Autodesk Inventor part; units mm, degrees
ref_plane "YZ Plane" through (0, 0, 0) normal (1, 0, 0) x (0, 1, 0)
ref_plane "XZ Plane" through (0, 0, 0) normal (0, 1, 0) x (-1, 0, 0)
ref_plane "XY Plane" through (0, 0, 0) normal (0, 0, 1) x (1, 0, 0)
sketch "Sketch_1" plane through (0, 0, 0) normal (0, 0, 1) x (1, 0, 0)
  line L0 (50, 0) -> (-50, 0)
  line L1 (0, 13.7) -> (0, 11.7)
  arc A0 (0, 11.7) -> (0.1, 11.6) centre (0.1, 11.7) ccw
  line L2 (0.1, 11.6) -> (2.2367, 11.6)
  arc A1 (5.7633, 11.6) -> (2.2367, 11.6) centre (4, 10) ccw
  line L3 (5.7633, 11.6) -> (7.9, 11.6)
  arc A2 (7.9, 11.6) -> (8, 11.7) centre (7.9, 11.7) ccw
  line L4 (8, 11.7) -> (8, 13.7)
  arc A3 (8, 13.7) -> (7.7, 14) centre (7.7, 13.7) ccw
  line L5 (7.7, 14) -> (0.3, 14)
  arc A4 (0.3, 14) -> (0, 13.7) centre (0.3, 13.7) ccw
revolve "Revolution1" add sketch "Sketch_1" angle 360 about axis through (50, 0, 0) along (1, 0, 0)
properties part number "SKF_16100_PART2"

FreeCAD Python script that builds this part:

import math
import FreeCAD as App
import Part
import Sketcher
from FreeCAD import Vector

doc = App.newDocument("Part")
body = doc.addObject("PartDesign::Body", "Body")

sketch1 = doc.addObject("Sketcher::SketchObject", "Sketch")
body.addObject(sketch1)
sketch1.AttachmentSupport = (doc.XY_Plane, [""])
sketch1.MapMode = "FlatFace"
sketch1.addGeometry(Part.ArcOfCircle(Part.Circle(Vector(0.3, 13.7, 0), Vector(0, 0, 1), 0.3), math.radians(90), math.radians(180)), False)
sketch1.addGeometry(Part.LineSegment(Vector(0, 13.7, 0), Vector(0, 11.7, 0)), False)
sketch1.addGeometry(Part.ArcOfCircle(Part.Circle(Vector(0.1, 11.7, 0), Vector(0, 0, 1), 0.1), math.radians(180), math.radians(270)), False)
sketch1.addGeometry(Part.LineSegment(Vector(0.1, 11.6, 0), Vector(2.24, 11.6, 0)), False)
sketch1.addGeometry(Part.ArcOfCircle(Part.Circle(Vector(4, 10, 0), Vector(0, 0, 1), 2.38), math.radians(42), math.radians(138)), False)
sketch1.addGeometry(Part.LineSegment(Vector(5.76, 11.6, 0), Vector(7.9, 11.6, 0)), False)
sketch1.addGeometry(Part.ArcOfCircle(Part.Circle(Vector(7.9, 11.7, 0), Vector(0, 0, 1), 0.1), math.radians(-90), math.radians(0)), False)
sketch1.addGeometry(Part.LineSegment(Vector(8, 11.7, 0), Vector(8, 13.7, 0)), False)
sketch1.addGeometry(Part.ArcOfCircle(Part.Circle(Vector(7.7, 13.7, 0), Vector(0, 0, 1), 0.3), math.radians(0), math.radians(90)), False)
sketch1.addGeometry(Part.LineSegment(Vector(7.7, 14, 0), Vector(0.3, 14, 0)), False)
sketch1.addConstraint(Sketcher.Constraint("Tangent", 0, 2, 1, 1))
sketch1.addConstraint(Sketcher.Constraint("Tangent", 1, 2, 2, 1))
sketch1.addConstraint(Sketcher.Constraint("Tangent", 2, 2, 3, 1))
sketch1.addConstraint(Sketcher.Constraint("Coincident", 3, 2, 4, 2))
sketch1.addConstraint(Sketcher.Constraint("Coincident", 4, 1, 5, 1))
sketch1.addConstraint(Sketcher.Constraint("Tangent", 5, 2, 6, 1))
sketch1.addConstraint(Sketcher.Constraint("Tangent", 6, 2, 7, 1))
sketch1.addConstraint(Sketcher.Constraint("Tangent", 7, 2, 8, 1))
sketch1.addConstraint(Sketcher.Constraint("Tangent", 8, 2, 9, 1))
sketch1.addConstraint(Sketcher.Constraint("Tangent", 9, 2, 0, 1))
sketch1.addConstraint(Sketcher.Constraint("Vertical", 1))
sketch1.addConstraint(Sketcher.Constraint("Horizontal", 3))
sketch1.addConstraint(Sketcher.Constraint("Horizontal", 5))
sketch1.addConstraint(Sketcher.Constraint("Vertical", 7))
sketch1.addConstraint(Sketcher.Constraint("Horizontal", 9))
sketch1.addConstraint(Sketcher.Constraint("Equal", 2, 6))
sketch1.addConstraint(Sketcher.Constraint("Equal", 0, 8))
sketch1.addConstraint(Sketcher.Constraint("PointOnObject", 0, 2, -2))
sketch1.addConstraint(Sketcher.Constraint("Horizontal", 2, 3, 6, 3))
sketch1.addConstraint(Sketcher.Constraint("Equal", 3, 5))
sketch1.addConstraint(Sketcher.Constraint("Radius", 0, 0.3))
sketch1.addConstraint(Sketcher.Constraint("Radius", 2, 0.1))
sketch1.addConstraint(Sketcher.Constraint("DistanceY", 1, 2, 1, 1, 2.0))
sketch1.addConstraint(Sketcher.Constraint("DistanceX", 9, 2, 9, 1, 7.4))
sketch1.addConstraint(Sketcher.Constraint("DistanceY", -1, 1, 4, 3, 10.0))
sketch1.addConstraint(Sketcher.Constraint("DistanceY", -1, 1, 8, 2, 14.0))
sketch1.addConstraint(Sketcher.Constraint("Radius", 4, 2.381))
revolution = doc.addObject("PartDesign::Revolution", "Revolution")
body.addObject(revolution)
revolution.Profile = sketch1
revolution.ReferenceAxis = (sketch1, ["H_Axis"])
revolution.Angle = 360

doc.recompute()
